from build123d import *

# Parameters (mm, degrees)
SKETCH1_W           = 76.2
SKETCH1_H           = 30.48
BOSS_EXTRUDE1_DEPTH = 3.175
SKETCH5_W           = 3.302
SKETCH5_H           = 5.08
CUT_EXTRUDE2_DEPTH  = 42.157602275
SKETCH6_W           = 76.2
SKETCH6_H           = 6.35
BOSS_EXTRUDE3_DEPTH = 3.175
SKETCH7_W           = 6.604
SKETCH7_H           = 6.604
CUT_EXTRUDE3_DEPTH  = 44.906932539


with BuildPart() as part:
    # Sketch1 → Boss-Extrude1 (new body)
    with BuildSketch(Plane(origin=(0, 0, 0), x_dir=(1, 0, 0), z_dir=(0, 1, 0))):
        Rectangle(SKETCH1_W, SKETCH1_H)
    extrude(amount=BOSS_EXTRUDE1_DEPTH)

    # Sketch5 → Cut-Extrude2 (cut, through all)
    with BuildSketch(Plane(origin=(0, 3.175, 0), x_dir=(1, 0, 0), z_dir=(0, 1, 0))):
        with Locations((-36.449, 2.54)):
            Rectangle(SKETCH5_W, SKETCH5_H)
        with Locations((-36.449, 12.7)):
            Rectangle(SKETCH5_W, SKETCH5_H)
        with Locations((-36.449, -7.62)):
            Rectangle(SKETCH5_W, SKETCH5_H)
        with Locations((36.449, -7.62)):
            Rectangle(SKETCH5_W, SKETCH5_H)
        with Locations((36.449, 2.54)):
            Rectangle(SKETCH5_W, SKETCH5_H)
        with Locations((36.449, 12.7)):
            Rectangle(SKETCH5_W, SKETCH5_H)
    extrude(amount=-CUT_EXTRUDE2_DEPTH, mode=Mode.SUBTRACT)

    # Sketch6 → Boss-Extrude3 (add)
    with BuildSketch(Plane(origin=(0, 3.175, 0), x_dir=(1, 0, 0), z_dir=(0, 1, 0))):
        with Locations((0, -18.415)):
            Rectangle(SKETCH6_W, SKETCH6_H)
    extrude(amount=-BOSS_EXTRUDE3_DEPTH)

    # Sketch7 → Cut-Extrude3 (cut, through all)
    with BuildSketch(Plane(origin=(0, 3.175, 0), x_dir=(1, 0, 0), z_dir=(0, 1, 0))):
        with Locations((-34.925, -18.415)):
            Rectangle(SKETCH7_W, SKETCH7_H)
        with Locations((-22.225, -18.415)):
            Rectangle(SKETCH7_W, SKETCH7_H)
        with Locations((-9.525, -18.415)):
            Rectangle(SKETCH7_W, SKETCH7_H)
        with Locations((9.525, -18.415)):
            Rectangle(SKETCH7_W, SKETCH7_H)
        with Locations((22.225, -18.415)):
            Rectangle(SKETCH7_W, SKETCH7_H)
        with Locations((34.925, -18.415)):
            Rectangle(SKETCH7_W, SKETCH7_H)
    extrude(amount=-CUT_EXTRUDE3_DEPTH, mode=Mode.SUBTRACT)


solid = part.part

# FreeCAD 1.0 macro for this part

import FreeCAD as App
import Part
import Sketcher
from FreeCAD import Vector
Q = App.Units.Quantity

doc = App.newDocument("Part")
body = doc.addObject("PartDesign::Body", "Body")

sketch1 = doc.addObject("Sketcher::SketchObject", "Sketch")
body.addObject(sketch1)
sketch1.AttachmentSupport = (doc.XZ_Plane, [""])
sketch1.MapMode = "FlatFace"
sketch1.addGeometry([
    Part.LineSegment(Vector(-38, -15, 0), Vector(-38, 15, 0)),
    Part.LineSegment(Vector(-38, 15, 0), Vector(38, 15, 0)),
    Part.LineSegment(Vector(38, 15, 0), Vector(38, -15, 0)),
    Part.LineSegment(Vector(38, -15, 0), Vector(-38, -15, 0)),
], False)
sketch1.addConstraint([
    Sketcher.Constraint("Coincident", 0, 2, 1, 1),
    Sketcher.Constraint("Coincident", 1, 2, 2, 1),
    Sketcher.Constraint("Coincident", 2, 2, 3, 1),
    Sketcher.Constraint("Coincident", 3, 2, 0, 1),
    Sketcher.Constraint("Vertical", 0),
    Sketcher.Constraint("Horizontal", 1),
    Sketcher.Constraint("Vertical", 2),
    Sketcher.Constraint("Horizontal", 3),
    Sketcher.Constraint("Symmetric", 0, 2, 2, 2, -1, 1),
    Sketcher.Constraint("DistanceX", 1, 1, 1, 2, Q("3 in")),
    Sketcher.Constraint("DistanceY", 0, 1, 0, 2, Q("1.2 in")),
])
pad1 = doc.addObject("PartDesign::Pad", "Pad")
body.addObject(pad1)
pad1.Profile = sketch1
pad1.Length = Q("0.125 in")
pad1.Reversed = True

sketch2 = doc.addObject("Sketcher::SketchObject", "Sketch001")
body.addObject(sketch2)
sketch2.AttachmentSupport = (doc.XZ_Plane, [""])
sketch2.MapMode = "FlatFace"
sketch2.AttachmentOffset = App.Placement(Vector(0, 0, -0.125 * 25.4), App.Rotation())
sketch2.addGeometry([
    Part.LineSegment(Vector(-38.1, -5.1, 0), Vector(-38.1, 0, 0)),
    Part.LineSegment(Vector(-38.1, 0, 0), Vector(-34.8, 0, 0)),
    Part.LineSegment(Vector(-34.8, 0, 0), Vector(-34.8, -5.1, 0)),
    Part.LineSegment(Vector(-34.8, -5.1, 0), Vector(-38.1, -5.1, 0)),
    Part.LineSegment(Vector(-38.1, -15.2, 0), Vector(-38.1, -10.2, 0)),
    Part.LineSegment(Vector(-38.1, -10.2, 0), Vector(-34.8, -10.2, 0)),
    Part.LineSegment(Vector(-34.8, -10.2, 0), Vector(-34.8, -15.2, 0)),
    Part.LineSegment(Vector(-34.8, -15.2, 0), Vector(-38.1, -15.2, 0)),
    Part.LineSegment(Vector(-38.1, 5.1, 0), Vector(-38.1, 10.2, 0)),
    Part.LineSegment(Vector(-38.1, 10.2, 0), Vector(-34.8, 10.2, 0)),
    Part.LineSegment(Vector(-34.8, 10.2, 0), Vector(-34.8, 5.1, 0)),
    Part.LineSegment(Vector(-34.8, 5.1, 0), Vector(-38.1, 5.1, 0)),
    Part.LineSegment(Vector(34.8, 5.1, 0), Vector(34.8, 10.2, 0)),
    Part.LineSegment(Vector(34.8, 10.2, 0), Vector(38.1, 10.2, 0)),
    Part.LineSegment(Vector(38.1, 10.2, 0), Vector(38.1, 5.1, 0)),
    Part.LineSegment(Vector(38.1, 5.1, 0), Vector(34.8, 5.1, 0)),
    Part.LineSegment(Vector(34.8, -5.1, 0), Vector(34.8, 0, 0)),
    Part.LineSegment(Vector(34.8, 0, 0), Vector(38.1, 0, 0)),
    Part.LineSegment(Vector(38.1, 0, 0), Vector(38.1, -5.1, 0)),
    Part.LineSegment(Vector(38.1, -5.1, 0), Vector(34.8, -5.1, 0)),
    Part.LineSegment(Vector(34.8, -15.2, 0), Vector(34.8, -10.2, 0)),
    Part.LineSegment(Vector(34.8, -10.2, 0), Vector(38.1, -10.2, 0)),
    Part.LineSegment(Vector(38.1, -10.2, 0), Vector(38.1, -15.2, 0)),
    Part.LineSegment(Vector(38.1, -15.2, 0), Vector(34.8, -15.2, 0)),
], False)
sketch2.addConstraint([
    Sketcher.Constraint("Coincident", 0, 2, 1, 1),
    Sketcher.Constraint("Coincident", 1, 2, 2, 1),
    Sketcher.Constraint("Coincident", 2, 2, 3, 1),
    Sketcher.Constraint("Coincident", 3, 2, 0, 1),
    Sketcher.Constraint("Coincident", 4, 2, 5, 1),
    Sketcher.Constraint("Coincident", 5, 2, 6, 1),
    Sketcher.Constraint("Coincident", 6, 2, 7, 1),
    Sketcher.Constraint("Coincident", 7, 2, 4, 1),
    Sketcher.Constraint("Coincident", 8, 2, 9, 1),
    Sketcher.Constraint("Coincident", 9, 2, 10, 1),
    Sketcher.Constraint("Coincident", 10, 2, 11, 1),
    Sketcher.Constraint("Coincident", 11, 2, 8, 1),
    Sketcher.Constraint("Coincident", 12, 2, 13, 1),
    Sketcher.Constraint("Coincident", 13, 2, 14, 1),
    Sketcher.Constraint("Coincident", 14, 2, 15, 1),
    Sketcher.Constraint("Coincident", 15, 2, 12, 1),
    Sketcher.Constraint("Coincident", 16, 2, 17, 1),
    Sketcher.Constraint("Coincident", 17, 2, 18, 1),
    Sketcher.Constraint("Coincident", 18, 2, 19, 1),
    Sketcher.Constraint("Coincident", 19, 2, 16, 1),
    Sketcher.Constraint("Coincident", 20, 2, 21, 1),
    Sketcher.Constraint("Coincident", 21, 2, 22, 1),
    Sketcher.Constraint("Coincident", 22, 2, 23, 1),
    Sketcher.Constraint("Coincident", 23, 2, 20, 1),
    Sketcher.Constraint("Vertical", 0),
    Sketcher.Constraint("Horizontal", 1),
    Sketcher.Constraint("Vertical", 2),
    Sketcher.Constraint("Horizontal", 3),
    Sketcher.Constraint("Vertical", 4),
    Sketcher.Constraint("Horizontal", 5),
    Sketcher.Constraint("Vertical", 6),
    Sketcher.Constraint("Horizontal", 7),
    Sketcher.Constraint("Vertical", 8),
    Sketcher.Constraint("Horizontal", 9),
    Sketcher.Constraint("Vertical", 10),
    Sketcher.Constraint("Horizontal", 11),
    Sketcher.Constraint("Vertical", 12),
    Sketcher.Constraint("Horizontal", 13),
    Sketcher.Constraint("Vertical", 14),
    Sketcher.Constraint("Horizontal", 15),
    Sketcher.Constraint("Vertical", 16),
    Sketcher.Constraint("Horizontal", 17),
    Sketcher.Constraint("Vertical", 18),
    Sketcher.Constraint("Horizontal", 19),
    Sketcher.Constraint("Vertical", 20),
    Sketcher.Constraint("Horizontal", 21),
    Sketcher.Constraint("Vertical", 22),
    Sketcher.Constraint("Horizontal", 23),
    Sketcher.Constraint("Symmetric", 5, 2, 12, 2, -1, 1),
    Sketcher.Constraint("Symmetric", 3, 2, 14, 2, -1, 1),
    Sketcher.Constraint("Symmetric", 1, 2, 16, 2, -1, 1),
    Sketcher.Constraint("Symmetric", 11, 2, 18, 2, -1, 1),
    Sketcher.Constraint("Symmetric", 9, 2, 20, 2, -1, 1),
    Sketcher.Constraint("Symmetric", 9, 2, 12, 2, -2),
    Sketcher.Constraint("Symmetric", 11, 2, 14, 2, -2),
    Sketcher.Constraint("Symmetric", 7, 2, 22, 2, -2),
    Sketcher.Constraint("PointOnObject", 0, 2, -1),
    Sketcher.Constraint("Vertical", 3, 2, 4, 2),
    Sketcher.Constraint("Vertical", 2, 2, 5, 2),
    Sketcher.Constraint("Equal", 2, 4),
    Sketcher.Constraint("Equal", 6, 8),
    Sketcher.Constraint("DistanceY", 0, 1, 0, 2, Q("0.2 in")),
    Sketcher.Constraint("DistanceX", 1, 1, 1, 2, Q("0.13 in")),
    Sketcher.Constraint("DistanceX", 0, 2, -1, 1, Q("1.5 in")),
])
pocket1 = doc.addObject("PartDesign::Pocket", "Pocket")
body.addObject(pocket1)
pocket1.Profile = sketch2
pocket1.Type = "ThroughAll"
pocket1.Reversed = True

sketch3 = doc.addObject("Sketcher::SketchObject", "Sketch002")
body.addObject(sketch3)
sketch3.AttachmentSupport = (doc.XZ_Plane, [""])
sketch3.MapMode = "FlatFace"
sketch3.AttachmentOffset = App.Placement(Vector(0, 0, -0.125 * 25.4), App.Rotation())
sketch3.addGeometry([
    Part.LineSegment(Vector(-38, 15, 0), Vector(-38, 22, 0)),
    Part.LineSegment(Vector(-38, 22, 0), Vector(38, 22, 0)),
    Part.LineSegment(Vector(38, 22, 0), Vector(38, 15, 0)),
    Part.LineSegment(Vector(38, 15, 0), Vector(-38, 15, 0)),
], False)
sketch3.addConstraint([
    Sketcher.Constraint("Coincident", 0, 2, 1, 1),
    Sketcher.Constraint("Coincident", 1, 2, 2, 1),
    Sketcher.Constraint("Coincident", 2, 2, 3, 1),
    Sketcher.Constraint("Coincident", 3, 2, 0, 1),
    Sketcher.Constraint("Vertical", 0),
    Sketcher.Constraint("Horizontal", 1),
    Sketcher.Constraint("Vertical", 2),
    Sketcher.Constraint("Horizontal", 3),
    Sketcher.Constraint("DistanceX", 1, 1, 1, 2, Q("3 in")),
    Sketcher.Constraint("DistanceY", 0, 1, 0, 2, Q("0.25 in")),
    Sketcher.Constraint("DistanceX", 0, 2, -1, 1, Q("1.5 in")),
    Sketcher.Constraint("DistanceY", -1, 1, 2, 2, Q("0.6 in")),
])
pad2 = doc.addObject("PartDesign::Pad", "Pad001")
body.addObject(pad2)
pad2.Profile = sketch3
pad2.Length = Q("0.125 in")

sketch4 = doc.addObject("Sketcher::SketchObject", "Sketch003")
body.addObject(sketch4)
sketch4.AttachmentSupport = (doc.XZ_Plane, [""])
sketch4.MapMode = "FlatFace"
sketch4.AttachmentOffset = App.Placement(Vector(0, 0, -0.125 * 25.4), App.Rotation())
sketch4.addGeometry([
    Part.LineSegment(Vector(-38, 15, 0), Vector(-38, 22, 0)),
    Part.LineSegment(Vector(-38, 22, 0), Vector(-32, 22, 0)),
    Part.LineSegment(Vector(-32, 22, 0), Vector(-32, 15, 0)),
    Part.LineSegment(Vector(-32, 15, 0), Vector(-38, 15, 0)),
    Part.LineSegment(Vector(-26, 15, 0), Vector(-26, 22, 0)),
    Part.LineSegment(Vector(-26, 22, 0), Vector(-19, 22, 0)),
    Part.LineSegment(Vector(-19, 22, 0), Vector(-19, 15, 0)),
    Part.LineSegment(Vector(-19, 15, 0), Vector(-26, 15, 0)),
    Part.LineSegment(Vector(-13, 15, 0), Vector(-13, 22, 0)),
    Part.LineSegment(Vector(-13, 22, 0), Vector(-6, 22, 0)),
    Part.LineSegment(Vector(-6, 22, 0), Vector(-6, 15, 0)),
    Part.LineSegment(Vector(-6, 15, 0), Vector(-13, 15, 0)),
    Part.LineSegment(Vector(6, 15, 0), Vector(6, 22, 0)),
    Part.LineSegment(Vector(6, 22, 0), Vector(13, 22, 0)),
    Part.LineSegment(Vector(13, 22, 0), Vector(13, 15, 0)),
    Part.LineSegment(Vector(13, 15, 0), Vector(6, 15, 0)),
    Part.LineSegment(Vector(19, 15, 0), Vector(19, 22, 0)),
    Part.LineSegment(Vector(19, 22, 0), Vector(26, 22, 0)),
    Part.LineSegment(Vector(26, 22, 0), Vector(26, 15, 0)),
    Part.LineSegment(Vector(26, 15, 0), Vector(19, 15, 0)),
    Part.LineSegment(Vector(32, 15, 0), Vector(32, 22, 0)),
    Part.LineSegment(Vector(32, 22, 0), Vector(38, 22, 0)),
    Part.LineSegment(Vector(38, 22, 0), Vector(38, 15, 0)),
    Part.LineSegment(Vector(38, 15, 0), Vector(32, 15, 0)),
], False)
sketch4.addConstraint([
    Sketcher.Constraint("Coincident", 0, 2, 1, 1),
    Sketcher.Constraint("Coincident", 1, 2, 2, 1),
    Sketcher.Constraint("Coincident", 2, 2, 3, 1),
    Sketcher.Constraint("Coincident", 3, 2, 0, 1),
    Sketcher.Constraint("Coincident", 4, 2, 5, 1),
    Sketcher.Constraint("Coincident", 5, 2, 6, 1),
    Sketcher.Constraint("Coincident", 6, 2, 7, 1),
    Sketcher.Constraint("Coincident", 7, 2, 4, 1),
    Sketcher.Constraint("Coincident", 8, 2, 9, 1),
    Sketcher.Constraint("Coincident", 9, 2, 10, 1),
    Sketcher.Constraint("Coincident", 10, 2, 11, 1),
    Sketcher.Constraint("Coincident", 11, 2, 8, 1),
    Sketcher.Constraint("Coincident", 12, 2, 13, 1),
    Sketcher.Constraint("Coincident", 13, 2, 14, 1),
    Sketcher.Constraint("Coincident", 14, 2, 15, 1),
    Sketcher.Constraint("Coincident", 15, 2, 12, 1),
    Sketcher.Constraint("Coincident", 16, 2, 17, 1),
    Sketcher.Constraint("Coincident", 17, 2, 18, 1),
    Sketcher.Constraint("Coincident", 18, 2, 19, 1),
    Sketcher.Constraint("Coincident", 19, 2, 16, 1),
    Sketcher.Constraint("Coincident", 20, 2, 21, 1),
    Sketcher.Constraint("Coincident", 21, 2, 22, 1),
    Sketcher.Constraint("Coincident", 22, 2, 23, 1),
    Sketcher.Constraint("Coincident", 23, 2, 20, 1),
    Sketcher.Constraint("Vertical", 0),
    Sketcher.Constraint("Horizontal", 1),
    Sketcher.Constraint("Vertical", 2),
    Sketcher.Constraint("Horizontal", 3),
    Sketcher.Constraint("Vertical", 4),
    Sketcher.Constraint("Horizontal", 5),
    Sketcher.Constraint("Vertical", 6),
    Sketcher.Constraint("Horizontal", 7),
    Sketcher.Constraint("Vertical", 8),
    Sketcher.Constraint("Horizontal", 9),
    Sketcher.Constraint("Vertical", 10),
    Sketcher.Constraint("Horizontal", 11),
    Sketcher.Constraint("Vertical", 12),
    Sketcher.Constraint("Horizontal", 13),
    Sketcher.Constraint("Vertical", 14),
    Sketcher.Constraint("Horizontal", 15),
    Sketcher.Constraint("Vertical", 16),
    Sketcher.Constraint("Horizontal", 17),
    Sketcher.Constraint("Vertical", 18),
    Sketcher.Constraint("Horizontal", 19),
    Sketcher.Constraint("Vertical", 20),
    Sketcher.Constraint("Horizontal", 21),
    Sketcher.Constraint("Vertical", 22),
    Sketcher.Constraint("Horizontal", 23),
    Sketcher.Constraint("Symmetric", 9, 2, 12, 2, -2),
    Sketcher.Constraint("Symmetric", 11, 2, 14, 2, -2),
    Sketcher.Constraint("Symmetric", 5, 2, 16, 2, -2),
    Sketcher.Constraint("Symmetric", 7, 2, 18, 2, -2),
    Sketcher.Constraint("Symmetric", 1, 2, 20, 2, -2),
    Sketcher.Constraint("Symmetric", 3, 2, 22, 2, -2),
    Sketcher.Constraint("Horizontal", 1, 2, 4, 2),
    Sketcher.Constraint("Horizontal", 3, 2, 6, 2),
    Sketcher.Constraint("Horizontal", 5, 2, 8, 2),
    Sketcher.Constraint("Horizontal", 7, 2, 10, 2),
    Sketcher.Constraint("Equal", 3, 5),
    Sketcher.Constraint("Equal", 7, 9),
    Sketcher.Constraint("Equal", 23, 0),
    Sketcher.Constraint("DistanceX", 1, 1, 1, 2, Q("0.26 in")),
    Sketcher.Constraint("DistanceX", 0, 2, 4, 2, Q("0.5 in")),
    Sketcher.Constraint("DistanceX", 4, 2, 8, 2, Q("0.5 in")),
    Sketcher.Constraint("DistanceX", 9, 2, 12, 2, Q("0.49 in")),
    Sketcher.Constraint("DistanceY", -1, 1, 0, 2, Q("0.855 in")),
])
pocket2 = doc.addObject("PartDesign::Pocket", "Pocket001")
body.addObject(pocket2)
pocket2.Profile = sketch4
pocket2.Type = "ThroughAll"
pocket2.Reversed = True

doc.recompute()
